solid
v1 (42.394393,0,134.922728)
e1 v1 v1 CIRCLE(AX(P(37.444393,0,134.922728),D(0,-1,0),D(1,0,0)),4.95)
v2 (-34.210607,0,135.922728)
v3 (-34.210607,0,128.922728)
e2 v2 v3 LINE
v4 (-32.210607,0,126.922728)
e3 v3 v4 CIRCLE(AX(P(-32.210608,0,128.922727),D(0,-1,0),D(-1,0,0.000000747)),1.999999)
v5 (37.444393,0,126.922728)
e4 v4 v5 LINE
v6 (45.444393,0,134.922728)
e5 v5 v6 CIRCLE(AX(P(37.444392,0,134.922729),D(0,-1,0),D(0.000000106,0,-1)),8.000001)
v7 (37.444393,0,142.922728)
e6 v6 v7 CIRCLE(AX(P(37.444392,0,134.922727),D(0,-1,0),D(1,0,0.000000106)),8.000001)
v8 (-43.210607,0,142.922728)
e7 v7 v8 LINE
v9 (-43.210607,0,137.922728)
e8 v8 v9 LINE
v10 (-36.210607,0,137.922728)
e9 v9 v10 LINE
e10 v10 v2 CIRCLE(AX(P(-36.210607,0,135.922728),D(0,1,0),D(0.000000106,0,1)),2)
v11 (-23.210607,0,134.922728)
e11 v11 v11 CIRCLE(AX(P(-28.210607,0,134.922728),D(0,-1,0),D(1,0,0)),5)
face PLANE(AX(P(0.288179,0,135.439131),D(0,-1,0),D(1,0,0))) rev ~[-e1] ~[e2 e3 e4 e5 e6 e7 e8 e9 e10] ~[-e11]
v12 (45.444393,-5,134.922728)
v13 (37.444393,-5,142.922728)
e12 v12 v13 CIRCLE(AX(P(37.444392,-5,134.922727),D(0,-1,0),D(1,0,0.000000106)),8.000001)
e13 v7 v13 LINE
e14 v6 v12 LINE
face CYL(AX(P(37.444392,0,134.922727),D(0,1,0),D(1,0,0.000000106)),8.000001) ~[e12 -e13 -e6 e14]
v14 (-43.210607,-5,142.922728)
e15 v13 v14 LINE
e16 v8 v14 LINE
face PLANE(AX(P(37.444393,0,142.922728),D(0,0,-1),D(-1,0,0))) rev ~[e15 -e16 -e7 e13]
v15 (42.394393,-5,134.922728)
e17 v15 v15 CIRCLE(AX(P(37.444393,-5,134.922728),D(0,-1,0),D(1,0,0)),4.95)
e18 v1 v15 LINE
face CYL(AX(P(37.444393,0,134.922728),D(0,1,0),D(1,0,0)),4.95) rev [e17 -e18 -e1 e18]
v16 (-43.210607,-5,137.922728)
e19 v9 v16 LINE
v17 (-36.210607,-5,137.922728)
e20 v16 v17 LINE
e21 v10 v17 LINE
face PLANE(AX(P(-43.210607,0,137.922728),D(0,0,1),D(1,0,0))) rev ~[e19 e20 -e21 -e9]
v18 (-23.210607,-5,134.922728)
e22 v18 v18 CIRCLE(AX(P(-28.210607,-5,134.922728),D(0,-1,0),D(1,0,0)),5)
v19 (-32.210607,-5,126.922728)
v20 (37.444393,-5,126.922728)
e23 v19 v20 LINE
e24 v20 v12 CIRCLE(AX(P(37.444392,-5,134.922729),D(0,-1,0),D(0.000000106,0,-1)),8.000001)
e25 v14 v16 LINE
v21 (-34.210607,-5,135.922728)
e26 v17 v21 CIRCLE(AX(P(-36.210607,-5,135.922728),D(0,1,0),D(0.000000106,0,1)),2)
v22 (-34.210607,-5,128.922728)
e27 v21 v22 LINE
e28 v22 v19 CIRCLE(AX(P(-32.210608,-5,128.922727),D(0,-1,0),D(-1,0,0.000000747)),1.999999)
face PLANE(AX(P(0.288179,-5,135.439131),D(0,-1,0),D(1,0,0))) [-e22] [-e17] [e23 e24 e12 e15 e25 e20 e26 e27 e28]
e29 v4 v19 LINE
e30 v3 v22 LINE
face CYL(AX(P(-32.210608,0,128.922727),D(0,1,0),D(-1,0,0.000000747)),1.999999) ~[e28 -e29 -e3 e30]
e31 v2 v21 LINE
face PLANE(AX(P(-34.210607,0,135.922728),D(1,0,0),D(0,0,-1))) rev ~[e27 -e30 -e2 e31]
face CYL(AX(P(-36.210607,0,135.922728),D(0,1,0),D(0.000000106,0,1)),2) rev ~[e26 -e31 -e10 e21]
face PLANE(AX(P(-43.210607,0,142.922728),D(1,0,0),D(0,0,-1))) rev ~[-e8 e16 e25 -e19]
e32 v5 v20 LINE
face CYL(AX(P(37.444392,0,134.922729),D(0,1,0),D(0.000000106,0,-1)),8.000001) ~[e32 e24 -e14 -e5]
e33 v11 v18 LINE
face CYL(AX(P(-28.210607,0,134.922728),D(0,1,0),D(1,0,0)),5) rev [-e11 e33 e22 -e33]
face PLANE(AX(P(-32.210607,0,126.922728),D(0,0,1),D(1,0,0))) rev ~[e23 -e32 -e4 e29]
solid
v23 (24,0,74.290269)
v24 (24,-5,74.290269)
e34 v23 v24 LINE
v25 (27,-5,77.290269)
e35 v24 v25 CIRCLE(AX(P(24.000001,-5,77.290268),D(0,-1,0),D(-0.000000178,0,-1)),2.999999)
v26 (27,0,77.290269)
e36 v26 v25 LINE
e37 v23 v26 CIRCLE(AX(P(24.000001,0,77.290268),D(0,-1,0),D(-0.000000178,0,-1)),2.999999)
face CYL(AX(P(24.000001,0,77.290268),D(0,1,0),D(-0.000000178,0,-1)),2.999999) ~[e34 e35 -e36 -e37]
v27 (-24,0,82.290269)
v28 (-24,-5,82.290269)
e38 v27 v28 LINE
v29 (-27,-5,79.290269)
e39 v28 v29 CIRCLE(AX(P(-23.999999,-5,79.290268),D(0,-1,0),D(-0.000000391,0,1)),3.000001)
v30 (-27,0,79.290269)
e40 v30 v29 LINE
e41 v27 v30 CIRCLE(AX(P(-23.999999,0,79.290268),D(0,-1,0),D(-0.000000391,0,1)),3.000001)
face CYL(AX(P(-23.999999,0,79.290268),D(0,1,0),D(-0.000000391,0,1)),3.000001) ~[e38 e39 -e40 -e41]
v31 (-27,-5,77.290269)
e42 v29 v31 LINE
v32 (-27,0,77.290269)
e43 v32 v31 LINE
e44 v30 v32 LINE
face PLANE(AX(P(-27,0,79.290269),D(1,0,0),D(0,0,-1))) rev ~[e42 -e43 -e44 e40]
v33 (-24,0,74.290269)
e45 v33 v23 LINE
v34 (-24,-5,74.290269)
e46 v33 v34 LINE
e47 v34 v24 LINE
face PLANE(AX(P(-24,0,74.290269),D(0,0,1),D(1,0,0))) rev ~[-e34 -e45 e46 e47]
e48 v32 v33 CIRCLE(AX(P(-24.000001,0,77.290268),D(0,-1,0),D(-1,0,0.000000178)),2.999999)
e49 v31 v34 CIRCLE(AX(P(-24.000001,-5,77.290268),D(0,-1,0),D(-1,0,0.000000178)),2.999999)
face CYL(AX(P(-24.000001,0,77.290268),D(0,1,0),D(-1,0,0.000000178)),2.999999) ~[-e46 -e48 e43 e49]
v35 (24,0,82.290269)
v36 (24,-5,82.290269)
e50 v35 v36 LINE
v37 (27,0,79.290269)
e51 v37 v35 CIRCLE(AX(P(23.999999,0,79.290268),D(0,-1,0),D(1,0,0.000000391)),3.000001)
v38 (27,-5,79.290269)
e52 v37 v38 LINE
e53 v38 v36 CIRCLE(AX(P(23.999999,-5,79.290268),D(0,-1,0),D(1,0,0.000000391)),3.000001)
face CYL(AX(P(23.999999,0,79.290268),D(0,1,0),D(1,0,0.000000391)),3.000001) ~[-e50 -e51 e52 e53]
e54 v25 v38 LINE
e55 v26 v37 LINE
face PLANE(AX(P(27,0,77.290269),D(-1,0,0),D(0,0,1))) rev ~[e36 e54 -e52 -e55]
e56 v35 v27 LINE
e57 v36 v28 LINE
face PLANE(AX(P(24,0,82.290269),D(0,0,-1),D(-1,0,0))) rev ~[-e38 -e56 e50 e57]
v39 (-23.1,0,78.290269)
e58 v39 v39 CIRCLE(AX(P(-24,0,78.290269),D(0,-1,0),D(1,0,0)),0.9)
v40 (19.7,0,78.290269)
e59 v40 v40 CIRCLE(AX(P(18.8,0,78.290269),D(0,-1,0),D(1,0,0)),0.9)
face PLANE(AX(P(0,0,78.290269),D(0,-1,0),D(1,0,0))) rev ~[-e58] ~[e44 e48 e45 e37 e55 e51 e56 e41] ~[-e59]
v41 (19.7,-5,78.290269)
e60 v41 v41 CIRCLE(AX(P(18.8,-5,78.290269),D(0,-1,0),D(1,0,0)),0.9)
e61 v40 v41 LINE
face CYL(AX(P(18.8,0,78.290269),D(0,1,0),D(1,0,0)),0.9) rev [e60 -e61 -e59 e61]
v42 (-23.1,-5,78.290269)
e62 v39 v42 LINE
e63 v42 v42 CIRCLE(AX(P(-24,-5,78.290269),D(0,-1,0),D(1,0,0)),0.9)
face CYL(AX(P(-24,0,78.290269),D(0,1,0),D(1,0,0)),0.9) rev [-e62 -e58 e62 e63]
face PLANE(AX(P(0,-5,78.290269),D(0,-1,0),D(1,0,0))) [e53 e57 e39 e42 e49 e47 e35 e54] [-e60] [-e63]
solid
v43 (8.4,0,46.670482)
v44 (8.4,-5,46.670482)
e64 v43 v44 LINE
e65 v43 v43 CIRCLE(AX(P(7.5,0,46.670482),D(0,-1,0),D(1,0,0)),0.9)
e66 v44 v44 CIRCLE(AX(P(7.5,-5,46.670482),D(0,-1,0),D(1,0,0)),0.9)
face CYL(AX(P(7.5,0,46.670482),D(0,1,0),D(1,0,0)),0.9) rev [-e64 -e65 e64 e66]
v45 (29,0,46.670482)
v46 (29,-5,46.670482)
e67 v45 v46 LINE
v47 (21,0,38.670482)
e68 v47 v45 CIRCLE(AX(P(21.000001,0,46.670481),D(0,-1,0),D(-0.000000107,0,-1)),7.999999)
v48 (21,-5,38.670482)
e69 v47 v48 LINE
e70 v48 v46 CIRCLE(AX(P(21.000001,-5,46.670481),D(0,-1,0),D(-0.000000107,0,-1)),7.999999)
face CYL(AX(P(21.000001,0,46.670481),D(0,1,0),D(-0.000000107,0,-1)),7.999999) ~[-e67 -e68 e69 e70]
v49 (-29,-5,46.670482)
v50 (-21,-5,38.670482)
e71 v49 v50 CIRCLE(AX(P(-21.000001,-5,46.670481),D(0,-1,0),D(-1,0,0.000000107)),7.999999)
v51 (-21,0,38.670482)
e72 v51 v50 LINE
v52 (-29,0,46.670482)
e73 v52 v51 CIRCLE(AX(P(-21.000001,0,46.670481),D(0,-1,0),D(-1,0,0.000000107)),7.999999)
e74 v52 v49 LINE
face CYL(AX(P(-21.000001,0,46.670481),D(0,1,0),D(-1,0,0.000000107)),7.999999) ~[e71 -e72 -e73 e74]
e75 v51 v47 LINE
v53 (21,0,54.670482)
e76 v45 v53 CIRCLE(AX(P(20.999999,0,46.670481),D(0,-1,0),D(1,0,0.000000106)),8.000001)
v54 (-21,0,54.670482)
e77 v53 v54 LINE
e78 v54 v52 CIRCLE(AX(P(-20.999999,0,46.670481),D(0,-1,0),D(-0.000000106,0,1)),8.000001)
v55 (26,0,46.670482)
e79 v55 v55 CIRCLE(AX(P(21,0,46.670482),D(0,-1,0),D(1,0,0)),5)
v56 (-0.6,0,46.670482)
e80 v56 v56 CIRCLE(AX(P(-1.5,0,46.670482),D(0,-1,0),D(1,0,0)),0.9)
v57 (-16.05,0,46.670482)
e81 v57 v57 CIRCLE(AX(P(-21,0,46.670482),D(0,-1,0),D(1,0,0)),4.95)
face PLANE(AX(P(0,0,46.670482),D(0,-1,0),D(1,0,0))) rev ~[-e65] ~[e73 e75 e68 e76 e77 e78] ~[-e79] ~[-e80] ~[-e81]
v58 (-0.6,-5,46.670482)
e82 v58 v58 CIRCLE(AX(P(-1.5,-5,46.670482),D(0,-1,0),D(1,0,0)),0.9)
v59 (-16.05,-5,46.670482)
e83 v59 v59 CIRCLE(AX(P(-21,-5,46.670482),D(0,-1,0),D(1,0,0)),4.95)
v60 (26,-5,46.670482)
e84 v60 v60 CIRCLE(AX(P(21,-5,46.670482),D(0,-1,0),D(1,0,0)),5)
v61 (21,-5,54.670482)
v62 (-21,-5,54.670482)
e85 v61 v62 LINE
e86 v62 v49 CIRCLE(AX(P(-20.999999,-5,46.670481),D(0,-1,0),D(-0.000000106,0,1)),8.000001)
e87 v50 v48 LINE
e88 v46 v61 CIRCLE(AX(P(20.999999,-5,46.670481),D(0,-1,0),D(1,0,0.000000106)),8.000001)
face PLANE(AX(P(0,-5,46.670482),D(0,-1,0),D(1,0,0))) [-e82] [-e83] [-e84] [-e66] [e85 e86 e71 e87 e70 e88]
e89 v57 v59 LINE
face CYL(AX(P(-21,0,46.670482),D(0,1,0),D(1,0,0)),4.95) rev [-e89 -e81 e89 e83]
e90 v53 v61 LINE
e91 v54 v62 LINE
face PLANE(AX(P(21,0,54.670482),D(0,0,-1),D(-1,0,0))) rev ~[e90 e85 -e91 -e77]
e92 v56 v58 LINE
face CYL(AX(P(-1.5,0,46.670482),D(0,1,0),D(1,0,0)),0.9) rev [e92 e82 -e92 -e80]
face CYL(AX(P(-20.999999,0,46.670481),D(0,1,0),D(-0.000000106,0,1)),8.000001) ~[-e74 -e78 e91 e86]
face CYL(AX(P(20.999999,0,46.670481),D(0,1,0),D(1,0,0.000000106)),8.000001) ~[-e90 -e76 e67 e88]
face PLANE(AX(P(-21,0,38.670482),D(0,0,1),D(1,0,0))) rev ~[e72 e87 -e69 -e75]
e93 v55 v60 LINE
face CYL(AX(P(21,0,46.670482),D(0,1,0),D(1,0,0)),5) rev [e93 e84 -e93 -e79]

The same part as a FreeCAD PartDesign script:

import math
import FreeCAD as App
import Part
import Sketcher

doc = App.newDocument("Part")
params = doc.addObject("Spreadsheet::Sheet", "Params")
for row, (alias, value) in enumerate([
    ("sketch1_diameter", "10 mm"),
    ("sketch1_radius", "8.000001 mm"),
    ("sketch1_radius2", "2 mm"),
    ("sketch1_radius3", "2.999999 mm"),
    ("sketch1_diameter2", "9.9 mm"),
    ("pad1_length", "5 mm"),
], start=1):
    params.set(f"A{row}", alias)
    params.set(f"B{row}", "=" + value)
    params.setAlias(f"B{row}", alias)

body = doc.addObject("PartDesign::Body", "Body")
body.AllowCompound = True

# Sketch on XZ plane
sketch1 = body.newObject("Sketcher::SketchObject", "Sketch")
sketch1.AttachmentSupport = (doc.getObject("XZ_Plane"), [""])
sketch1.MapMode = "FlatFace"
sketch1.addGeometry([
    Part.LineSegment(App.Vector(-32.2, 126.9, 0), App.Vector(37.4, 126.9, 0)),  # 0
    Part.ArcOfCircle(Part.Circle(App.Vector(37.4, 134.9, 0), App.Vector(0, 0, 1), 8), math.radians(-90), math.radians(0)),  # 1
    Part.ArcOfCircle(Part.Circle(App.Vector(37.4, 134.9, 0), App.Vector(0, 0, 1), 8), math.radians(0), math.radians(90)),  # 2
    Part.LineSegment(App.Vector(37.4, 142.9, 0), App.Vector(-43.2, 142.9, 0)),  # 3
    Part.LineSegment(App.Vector(-43.2, 142.9, 0), App.Vector(-43.2, 137.9, 0)),  # 4
    Part.LineSegment(App.Vector(-43.2, 137.9, 0), App.Vector(-36.2, 137.9, 0)),  # 5
    Part.ArcOfCircle(Part.Circle(App.Vector(-36.2, 135.9, 0), App.Vector(0, 0, 1), 2), math.radians(0), math.radians(90)),  # 6
    Part.LineSegment(App.Vector(-34.2, 135.9, 0), App.Vector(-34.2, 128.9, 0)),  # 7
    Part.ArcOfCircle(Part.Circle(App.Vector(-32.2, 128.9, 0), App.Vector(0, 0, 1), 2), math.radians(180), math.radians(270)),  # 8
    Part.Circle(App.Vector(-28.2, 134.9, 0), App.Vector(0, 0, 1), 5),  # 9
    Part.Circle(App.Vector(37.4, 134.9, 0), App.Vector(0, 0, 1), 5),  # 10
    Part.LineSegment(App.Vector(-24, 74.3, 0), App.Vector(24, 74.3, 0)),  # 11
    Part.ArcOfCircle(Part.Circle(App.Vector(24, 77.3, 0), App.Vector(0, 0, 1), 3), math.radians(-90), math.radians(0)),  # 12
    Part.LineSegment(App.Vector(27, 77.3, 0), App.Vector(27, 79.3, 0)),  # 13
    Part.ArcOfCircle(Part.Circle(App.Vector(24, 79.3, 0), App.Vector(0, 0, 1), 3), math.radians(0), math.radians(90)),  # 14
    Part.LineSegment(App.Vector(24, 82.3, 0), App.Vector(-24, 82.3, 0)),  # 15
    Part.ArcOfCircle(Part.Circle(App.Vector(-24, 79.3, 0), App.Vector(0, 0, 1), 3), math.radians(90), math.radians(180)),  # 16
    Part.LineSegment(App.Vector(-27, 79.3, 0), App.Vector(-27, 77.3, 0)),  # 17
    Part.ArcOfCircle(Part.Circle(App.Vector(-24, 77.3, 0), App.Vector(0, 0, 1), 3), math.radians(180), math.radians(270)),  # 18
    Part.Circle(App.Vector(-24, 78.3, 0), App.Vector(0, 0, 1), 0.9),  # 19
    Part.Circle(App.Vector(18.8, 78.3, 0), App.Vector(0, 0, 1), 0.9),  # 20
    Part.LineSegment(App.Vector(-21, 38.7, 0), App.Vector(21, 38.7, 0)),  # 21
    Part.ArcOfCircle(Part.Circle(App.Vector(21, 46.7, 0), App.Vector(0, 0, 1), 8), math.radians(-90), math.radians(0)),  # 22
    Part.ArcOfCircle(Part.Circle(App.Vector(21, 46.7, 0), App.Vector(0, 0, 1), 8), math.radians(0), math.radians(90)),  # 23
    Part.LineSegment(App.Vector(21, 54.7, 0), App.Vector(-21, 54.7, 0)),  # 24
    Part.ArcOfCircle(Part.Circle(App.Vector(-21, 46.7, 0), App.Vector(0, 0, 1), 8), math.radians(90), math.radians(180)),  # 25
    Part.ArcOfCircle(Part.Circle(App.Vector(-21, 46.7, 0), App.Vector(0, 0, 1), 8), math.radians(180), math.radians(270)),  # 26
    Part.Circle(App.Vector(-21, 46.7, 0), App.Vector(0, 0, 1), 5),  # 27
    Part.Circle(App.Vector(-1.5, 46.7, 0), App.Vector(0, 0, 1), 0.9),  # 28
    Part.Circle(App.Vector(7.5, 46.7, 0), App.Vector(0, 0, 1), 0.9),  # 29
    Part.Circle(App.Vector(21, 46.7, 0), App.Vector(0, 0, 1), 5),  # 30
], False)
sketch1.addConstraint([
    Sketcher.Constraint("Tangent", 0, 2, 1, 1),
    Sketcher.Constraint("Tangent", 1, 2, 2, 1),
    Sketcher.Constraint("Tangent", 2, 2, 3, 1),
    Sketcher.Constraint("Coincident", 3, 2, 4, 1),
    Sketcher.Constraint("Coincident", 4, 2, 5, 1),
    Sketcher.Constraint("Tangent", 5, 2, 6, 2),
    Sketcher.Constraint("Tangent", 6, 1, 7, 1),
    Sketcher.Constraint("Tangent", 7, 2, 8, 1),
    Sketcher.Constraint("Tangent", 8, 2, 0, 1),
    Sketcher.Constraint("Tangent", 11, 2, 12, 1),
    Sketcher.Constraint("Tangent", 12, 2, 13, 1),
    Sketcher.Constraint("Tangent", 13, 2, 14, 1),
    Sketcher.Constraint("Tangent", 14, 2, 15, 1),
    Sketcher.Constraint("Tangent", 15, 2, 16, 1),
    Sketcher.Constraint("Tangent", 16, 2, 17, 1),
    Sketcher.Constraint("Tangent", 17, 2, 18, 1),
    Sketcher.Constraint("Tangent", 18, 2, 11, 1),
    Sketcher.Constraint("Tangent", 21, 2, 22, 1),
    Sketcher.Constraint("Tangent", 22, 2, 23, 1),
    Sketcher.Constraint("Tangent", 23, 2, 24, 1),
    Sketcher.Constraint("Tangent", 24, 2, 25, 1),
    Sketcher.Constraint("Tangent", 25, 2, 26, 1),
    Sketcher.Constraint("Tangent", 26, 2, 21, 1),
    Sketcher.Constraint("Horizontal", 0),
    Sketcher.Constraint("Horizontal", 3),
    Sketcher.Constraint("Vertical", 4),
    Sketcher.Constraint("Horizontal", 5),
    Sketcher.Constraint("Vertical", 7),
    Sketcher.Constraint("Horizontal", 11),
    Sketcher.Constraint("Vertical", 13),
    Sketcher.Constraint("Horizontal", 15),
    Sketcher.Constraint("Vertical", 17),
    Sketcher.Constraint("Horizontal", 21),
    Sketcher.Constraint("Horizontal", 24),
    Sketcher.Constraint("Coincident", 10, 3, 1, 3),
    Sketcher.Constraint("Coincident", 27, 3, 25, 3),
    Sketcher.Constraint("Coincident", 30, 3, 22, 3),
    Sketcher.Constraint("Equal", 1, 2),
    Sketcher.Constraint("Equal", 6, 8),
    Sketcher.Constraint("Equal", 12, 14),
    Sketcher.Constraint("Equal", 14, 16),
    Sketcher.Constraint("Equal", 16, 18),
    Sketcher.Constraint("Equal", 19, 20),
    Sketcher.Constraint("Equal", 2, 22),
    Sketcher.Constraint("Equal", 22, 23),
    Sketcher.Constraint("Equal", 23, 25),
    Sketcher.Constraint("Equal", 10, 27),
    Sketcher.Constraint("Equal", 20, 28),
    Sketcher.Constraint("Equal", 28, 29),
    Sketcher.Constraint("Equal", 9, 30),
    Sketcher.Constraint("Symmetric", 22, 2, 25, 2, -2),
    Sketcher.Constraint("Horizontal", 2, 3, 9, 3),
    Sketcher.Constraint("Horizontal", 19, 3, 20, 3),
    Sketcher.Constraint("Horizontal", 27, 3, 28, 3),
    Sketcher.Constraint("Horizontal", 28, 3, 29, 3),
    Sketcher.Constraint("Horizontal", 10, 3, 1, 2),
    Sketcher.Constraint("Horizontal", 30, 3, 22, 2),
    Sketcher.Constraint("Vertical", 18, 3, 19, 3),
    Sketcher.Constraint("Equal", 5, 7),
    Sketcher.Constraint("Diameter", 9, 10.0),
    Sketcher.Constraint("Radius", 1, 8.000001),
    Sketcher.Constraint("Radius", 6, 2.0),
    Sketcher.Constraint("Radius", 12, 2.999999),
    Sketcher.Constraint("Diameter", 10, 9.9),
    Sketcher.Constraint("Diameter", 19, 1.8),
    Sketcher.Constraint("DistanceX", 5, 1, 5, 2, 7.0),
    Sketcher.Constraint("DistanceX", 11, 1, 11, 2, 48.0),
    Sketcher.Constraint("DistanceX", 21, 1, 21, 2, 42.0),
    Sketcher.Constraint("DistanceY", 13, 1, 13, 2, 2.0),
    Sketcher.Constraint("DistanceX", -1, 1, 12, 3, 24.000001),
    Sketcher.Constraint("DistanceX", 8, 3, 9, 3, 4.000001),
    Sketcher.Constraint("DistanceY", 19, 3, 16, 3, 0.999999),
    Sketcher.Constraint("DistanceX", 28, 3, 29, 3, 9.0),
    Sketcher.Constraint("DistanceX", -1, 1, 20, 3, 18.8),
    Sketcher.Constraint("DistanceX", 28, 3, -1, 1, 1.5),
    Sketcher.Constraint("DistanceX", 0, 1, 0, 2, 69.655),
    Sketcher.Constraint("DistanceY", -1, 1, 1, 3, 134.922729),
    Sketcher.Constraint("DistanceX", 8, 3, -1, 1, 32.210608),
    Sketcher.Constraint("DistanceY", -1, 1, 12, 3, 77.290268),
    Sketcher.Constraint("DistanceY", -1, 1, 22, 3, 46.670481),
])
sketch1.setExpression("Constraints[59]", "Params.sketch1_diameter")
sketch1.setExpression("Constraints[60]", "Params.sketch1_radius")
sketch1.setExpression("Constraints[61]", "Params.sketch1_radius2")
sketch1.setExpression("Constraints[62]", "Params.sketch1_radius3")
sketch1.setExpression("Constraints[63]", "Params.sketch1_diameter2")
pad1 = body.newObject("PartDesign::Pad", "Pad")
pad1.Profile = sketch1
pad1.setExpression("Length", "Params.pad1_length")

doc.recompute()
